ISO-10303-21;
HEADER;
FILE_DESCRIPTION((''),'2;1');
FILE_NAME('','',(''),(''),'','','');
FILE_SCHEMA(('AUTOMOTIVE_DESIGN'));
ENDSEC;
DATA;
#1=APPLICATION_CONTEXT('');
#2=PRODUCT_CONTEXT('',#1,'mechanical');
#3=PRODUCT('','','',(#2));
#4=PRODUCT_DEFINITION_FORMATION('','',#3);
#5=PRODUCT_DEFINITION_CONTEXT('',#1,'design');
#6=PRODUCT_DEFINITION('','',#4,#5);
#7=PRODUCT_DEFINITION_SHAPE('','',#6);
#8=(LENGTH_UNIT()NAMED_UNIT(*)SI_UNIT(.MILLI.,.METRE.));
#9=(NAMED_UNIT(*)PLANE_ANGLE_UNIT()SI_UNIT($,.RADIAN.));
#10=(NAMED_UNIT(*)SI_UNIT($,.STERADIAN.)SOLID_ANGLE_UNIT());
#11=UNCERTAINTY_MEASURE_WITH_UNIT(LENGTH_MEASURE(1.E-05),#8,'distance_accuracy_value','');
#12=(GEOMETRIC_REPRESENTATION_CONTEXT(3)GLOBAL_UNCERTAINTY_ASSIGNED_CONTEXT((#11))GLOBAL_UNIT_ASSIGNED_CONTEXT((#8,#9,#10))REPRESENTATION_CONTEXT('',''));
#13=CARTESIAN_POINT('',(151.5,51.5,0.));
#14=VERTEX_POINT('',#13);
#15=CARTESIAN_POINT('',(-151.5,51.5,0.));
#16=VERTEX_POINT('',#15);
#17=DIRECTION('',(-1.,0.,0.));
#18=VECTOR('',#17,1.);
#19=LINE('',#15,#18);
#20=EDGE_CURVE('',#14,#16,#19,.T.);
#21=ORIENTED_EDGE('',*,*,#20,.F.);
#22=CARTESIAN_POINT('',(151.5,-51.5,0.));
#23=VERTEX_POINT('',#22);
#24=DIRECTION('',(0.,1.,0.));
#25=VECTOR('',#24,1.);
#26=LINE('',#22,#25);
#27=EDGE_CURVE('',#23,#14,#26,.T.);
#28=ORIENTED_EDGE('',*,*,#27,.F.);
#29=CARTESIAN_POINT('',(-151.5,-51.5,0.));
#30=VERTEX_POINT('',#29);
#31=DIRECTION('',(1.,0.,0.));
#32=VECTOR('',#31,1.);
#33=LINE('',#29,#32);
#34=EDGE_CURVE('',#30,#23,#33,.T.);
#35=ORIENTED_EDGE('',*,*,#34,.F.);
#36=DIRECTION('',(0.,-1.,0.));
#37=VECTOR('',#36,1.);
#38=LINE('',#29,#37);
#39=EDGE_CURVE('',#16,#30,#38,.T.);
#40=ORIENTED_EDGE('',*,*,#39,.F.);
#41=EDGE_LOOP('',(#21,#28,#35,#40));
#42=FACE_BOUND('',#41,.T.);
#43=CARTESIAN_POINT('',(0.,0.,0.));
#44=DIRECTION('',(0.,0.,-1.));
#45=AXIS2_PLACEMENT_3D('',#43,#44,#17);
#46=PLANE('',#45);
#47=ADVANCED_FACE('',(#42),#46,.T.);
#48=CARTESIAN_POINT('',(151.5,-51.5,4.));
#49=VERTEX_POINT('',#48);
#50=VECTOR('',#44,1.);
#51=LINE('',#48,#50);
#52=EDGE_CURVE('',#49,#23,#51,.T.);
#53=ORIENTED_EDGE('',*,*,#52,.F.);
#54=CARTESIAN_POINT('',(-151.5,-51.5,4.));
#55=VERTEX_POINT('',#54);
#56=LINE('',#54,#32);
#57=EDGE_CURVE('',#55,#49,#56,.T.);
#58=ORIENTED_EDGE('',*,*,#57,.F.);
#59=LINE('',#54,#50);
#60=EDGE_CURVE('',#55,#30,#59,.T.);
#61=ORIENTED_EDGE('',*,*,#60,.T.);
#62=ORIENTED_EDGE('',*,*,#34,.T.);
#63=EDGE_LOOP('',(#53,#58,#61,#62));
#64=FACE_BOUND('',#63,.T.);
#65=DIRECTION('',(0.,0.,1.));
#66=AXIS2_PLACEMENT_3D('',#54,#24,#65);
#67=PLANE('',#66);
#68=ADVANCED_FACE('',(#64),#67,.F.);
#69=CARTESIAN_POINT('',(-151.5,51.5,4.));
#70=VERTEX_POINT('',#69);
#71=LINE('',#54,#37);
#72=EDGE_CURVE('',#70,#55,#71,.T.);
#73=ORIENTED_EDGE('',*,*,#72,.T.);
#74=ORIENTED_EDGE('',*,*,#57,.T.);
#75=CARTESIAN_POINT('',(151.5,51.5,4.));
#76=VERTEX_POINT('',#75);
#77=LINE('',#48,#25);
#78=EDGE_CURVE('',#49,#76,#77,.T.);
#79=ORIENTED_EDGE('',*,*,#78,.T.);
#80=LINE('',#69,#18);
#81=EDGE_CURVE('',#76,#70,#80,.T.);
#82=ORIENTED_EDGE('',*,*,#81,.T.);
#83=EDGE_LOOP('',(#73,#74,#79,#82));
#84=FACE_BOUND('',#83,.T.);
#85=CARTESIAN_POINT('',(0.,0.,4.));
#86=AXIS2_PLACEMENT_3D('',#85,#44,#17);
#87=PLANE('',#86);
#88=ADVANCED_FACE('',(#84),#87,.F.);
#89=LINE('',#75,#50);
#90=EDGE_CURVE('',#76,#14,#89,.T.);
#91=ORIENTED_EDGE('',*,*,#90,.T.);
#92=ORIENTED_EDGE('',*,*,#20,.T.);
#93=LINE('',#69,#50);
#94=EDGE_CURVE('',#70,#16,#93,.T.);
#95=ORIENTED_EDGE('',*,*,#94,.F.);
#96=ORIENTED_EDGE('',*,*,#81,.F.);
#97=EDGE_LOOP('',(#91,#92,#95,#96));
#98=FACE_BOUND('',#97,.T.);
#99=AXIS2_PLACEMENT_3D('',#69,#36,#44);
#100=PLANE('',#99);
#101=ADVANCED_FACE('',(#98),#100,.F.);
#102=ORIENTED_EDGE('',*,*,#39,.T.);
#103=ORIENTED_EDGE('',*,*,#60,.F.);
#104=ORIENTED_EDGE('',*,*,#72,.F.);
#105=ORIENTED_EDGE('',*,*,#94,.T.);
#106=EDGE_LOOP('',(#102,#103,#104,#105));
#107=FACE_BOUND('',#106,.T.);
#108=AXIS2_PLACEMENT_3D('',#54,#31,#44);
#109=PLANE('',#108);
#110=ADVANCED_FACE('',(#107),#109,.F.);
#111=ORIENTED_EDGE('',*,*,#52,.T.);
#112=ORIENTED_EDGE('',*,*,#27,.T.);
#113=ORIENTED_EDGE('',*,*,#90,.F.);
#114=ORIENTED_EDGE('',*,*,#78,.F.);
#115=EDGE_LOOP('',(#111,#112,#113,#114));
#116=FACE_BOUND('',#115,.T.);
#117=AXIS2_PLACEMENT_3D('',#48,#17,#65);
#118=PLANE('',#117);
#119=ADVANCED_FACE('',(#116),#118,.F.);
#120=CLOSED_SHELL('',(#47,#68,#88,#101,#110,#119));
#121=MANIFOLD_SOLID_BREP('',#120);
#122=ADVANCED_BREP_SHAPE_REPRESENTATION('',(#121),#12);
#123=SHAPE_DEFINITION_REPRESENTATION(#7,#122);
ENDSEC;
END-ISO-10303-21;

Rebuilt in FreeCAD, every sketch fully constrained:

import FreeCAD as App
import Part
import Sketcher

doc = App.newDocument("Part")
body = doc.addObject("PartDesign::Body", "Body")

# Sketch on XY plane
sketch1 = doc.addObject("Sketcher::SketchObject", "Sketch")
body.addObject(sketch1)
sketch1.AttachmentSupport = (doc.XY_Plane, [""])
sketch1.MapMode = "FlatFace"
sketch1.addGeometry(Part.LineSegment(App.Vector(-152, 52, 0), App.Vector(-152, -52, 0)), False)
sketch1.addGeometry(Part.LineSegment(App.Vector(-152, -52, 0), App.Vector(152, -52, 0)), False)
sketch1.addGeometry(Part.LineSegment(App.Vector(152, -52, 0), App.Vector(152, 52, 0)), False)
sketch1.addGeometry(Part.LineSegment(App.Vector(152, 52, 0), App.Vector(-152, 52, 0)), False)
sketch1.addConstraint(Sketcher.Constraint("Coincident", 0, 2, 1, 1))
sketch1.addConstraint(Sketcher.Constraint("Coincident", 1, 2, 2, 1))
sketch1.addConstraint(Sketcher.Constraint("Coincident", 2, 2, 3, 1))
sketch1.addConstraint(Sketcher.Constraint("Coincident", 3, 2, 0, 1))
sketch1.addConstraint(Sketcher.Constraint("Vertical", 0))
sketch1.addConstraint(Sketcher.Constraint("Horizontal", 1))
sketch1.addConstraint(Sketcher.Constraint("Vertical", 2))
sketch1.addConstraint(Sketcher.Constraint("Horizontal", 3))
sketch1.addConstraint(Sketcher.Constraint("Symmetric", 0, 2, 2, 2, -1, 1))
sketch1.addConstraint(Sketcher.Constraint("DistanceX", 1, 1, 1, 2, 303.0))
sketch1.addConstraint(Sketcher.Constraint("DistanceY", 0, 2, 0, 1, 103.0))
pad1 = doc.addObject("PartDesign::Pad", "Pad")
body.addObject(pad1)
pad1.Profile = sketch1
pad1.Length = 4

doc.recompute()
